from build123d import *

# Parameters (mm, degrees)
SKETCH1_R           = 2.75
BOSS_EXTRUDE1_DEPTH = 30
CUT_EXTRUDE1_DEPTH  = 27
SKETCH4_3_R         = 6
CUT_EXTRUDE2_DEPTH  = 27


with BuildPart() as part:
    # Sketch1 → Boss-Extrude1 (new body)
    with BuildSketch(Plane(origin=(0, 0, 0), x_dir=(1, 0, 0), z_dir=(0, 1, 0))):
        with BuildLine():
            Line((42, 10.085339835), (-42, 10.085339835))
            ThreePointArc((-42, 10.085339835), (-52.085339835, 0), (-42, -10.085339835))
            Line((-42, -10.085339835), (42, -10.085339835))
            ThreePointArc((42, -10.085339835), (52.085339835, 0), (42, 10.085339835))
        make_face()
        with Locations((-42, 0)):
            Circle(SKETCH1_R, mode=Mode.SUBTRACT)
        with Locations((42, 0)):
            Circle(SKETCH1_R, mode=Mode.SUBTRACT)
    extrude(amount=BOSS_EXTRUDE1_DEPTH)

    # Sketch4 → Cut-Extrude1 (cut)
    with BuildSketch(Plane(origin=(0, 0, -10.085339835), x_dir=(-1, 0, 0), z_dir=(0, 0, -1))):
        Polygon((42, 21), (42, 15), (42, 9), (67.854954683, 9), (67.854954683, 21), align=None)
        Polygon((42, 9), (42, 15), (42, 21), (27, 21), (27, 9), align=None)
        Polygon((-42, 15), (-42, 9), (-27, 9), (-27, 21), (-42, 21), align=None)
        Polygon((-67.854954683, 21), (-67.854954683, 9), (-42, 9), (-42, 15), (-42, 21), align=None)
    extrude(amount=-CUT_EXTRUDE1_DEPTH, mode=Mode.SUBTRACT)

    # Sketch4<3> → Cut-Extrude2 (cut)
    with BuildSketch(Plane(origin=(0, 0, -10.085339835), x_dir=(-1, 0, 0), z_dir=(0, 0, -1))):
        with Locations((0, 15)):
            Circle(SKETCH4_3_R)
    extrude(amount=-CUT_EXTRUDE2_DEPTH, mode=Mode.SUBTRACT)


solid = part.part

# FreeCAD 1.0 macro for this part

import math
import FreeCAD as App
import Part
import Sketcher

V = App.Vector
Q = App.Units.Quantity


def add_polygon(sketch, points):
    """Adds a closed chain of lines whose ends are joined by coincident constraints."""
    first, n = sketch.GeometryCount, len(points)
    for a, b in zip(points, points[1:] + points[:1]):
        sketch.addGeometry(Part.LineSegment(App.Vector(*a, 0), App.Vector(*b, 0)), False)
    for i in range(n):
        sketch.addConstraint(Sketcher.Constraint("Coincident", first + i, 2, first + (i + 1) % n, 1))

doc = App.newDocument("Part")
params = doc.addObject("Spreadsheet::Sheet", "Params")
for row, (alias, value) in enumerate([
    ("sketch1_diameter", "5.5 mm"),
    ("sketch1_width", "84 mm"),
    ("pad1_length", "30 mm"),
    ("sketch2_height", "12 mm"),
    ("pocket1_length", "27 mm"),
    ("sketch3_diameter", "12 mm"),
    ("pocket2_length", "27 mm"),
], start=1):
    params.set(f"A{row}", alias)
    params.set(f"B{row}", "=" + value)
    params.setAlias(f"B{row}", alias)

body = doc.addObject("PartDesign::Body", "Body")

# Sketch on XZ plane
sketch1 = body.newObject("Sketcher::SketchObject", "Sketch")
sketch1.AttachmentSupport = (doc.getObject("XZ_Plane"), [""])
sketch1.MapMode = "FlatFace"
sketch1.addGeometry([
    Part.LineSegment(V(42, -10.08534, 0), V(-42, -10.08534, 0)),  # 0
    Part.ArcOfCircle(Part.Circle(V(-42, 0, 0), V(0, 0, 1), 10.08534), math.radians(90), math.radians(270)),  # 1
    Part.LineSegment(V(-42, 10.08534, 0), V(42, 10.08534, 0)),  # 2
    Part.ArcOfCircle(Part.Circle(V(42, 0, 0), V(0, 0, 1), 10.08534), math.radians(-90), math.radians(90)),  # 3
    Part.Circle(V(-42, 0, 0), V(0, 0, 1), 2.75),  # 4
    Part.Circle(V(42, 0, 0), V(0, 0, 1), 2.75),  # 5
], False)
sketch1.addConstraint([
    Sketcher.Constraint("Tangent", 0, 2, 1, 2),
    Sketcher.Constraint("Tangent", 1, 1, 2, 1),
    Sketcher.Constraint("Tangent", 2, 2, 3, 2),
    Sketcher.Constraint("Tangent", 3, 1, 0, 1),
    Sketcher.Constraint("Horizontal", 0),
    Sketcher.Constraint("Horizontal", 2),
    Sketcher.Constraint("Coincident", 4, 3, 1, 3),
    Sketcher.Constraint("Coincident", 5, 3, 3, 3),
    Sketcher.Constraint("Equal", 4, 5),
    Sketcher.Constraint("Symmetric", 1, 3, 3, 3, -1, 1),
    Sketcher.Constraint("Diameter", 4, Q("5.5 mm")),
    Sketcher.Constraint("DistanceX", 0, 2, 0, 1, Q("84 mm")),
    Sketcher.Constraint("Radius", 1, Q("10.08534 mm")),
])
sketch1.setExpression("Constraints[10]", "Params.sketch1_diameter")
sketch1.setExpression("Constraints[11]", "Params.sketch1_width")
pad1 = body.newObject("PartDesign::Pad", "Pad")
pad1.Profile = sketch1
pad1.setExpression("Length", "Params.pad1_length")
pad1.Reversed = True

# Sketch on XY plane
sketch2 = body.newObject("Sketcher::SketchObject", "Sketch001")
sketch2.AttachmentSupport = (doc.getObject("XY_Plane"), [""])
sketch2.MapMode = "FlatFace"
sketch2.AttachmentOffset = App.Placement(V(0, 0, -10.08534), App.Rotation())
add_polygon(sketch2, [(-67.854955, 9), (-67.854955, 21), (-27, 21), (-27, 9)])  # lines 0-3
add_polygon(sketch2, [(27, 9), (27, 21), (67.854955, 21), (67.854955, 9)])  # lines 4-7
sketch2.addConstraint([
    Sketcher.Constraint("Vertical", 0),
    Sketcher.Constraint("Horizontal", 1),
    Sketcher.Constraint("Vertical", 2),
    Sketcher.Constraint("Horizontal", 3),
    Sketcher.Constraint("Vertical", 4),
    Sketcher.Constraint("Horizontal", 5),
    Sketcher.Constraint("Vertical", 6),
    Sketcher.Constraint("Horizontal", 7),
    Sketcher.Constraint("Symmetric", 1, 2, 4, 2, -2),
    Sketcher.Constraint("Symmetric", 3, 2, 6, 2, -2),
    Sketcher.Constraint("DistanceY", 0, 1, 0, 2, Q("12 mm")),
    Sketcher.Constraint("DistanceY", -1, 1, 0, 2, Q("21 mm")),
    Sketcher.Constraint("DistanceX", 1, 2, -1, 1, Q("27 mm")),
    Sketcher.Constraint("DistanceX", 1, 1, 1, 2, Q("40.854955 mm")),
])
sketch2.setExpression("Constraints[18]", "Params.sketch2_height")
pocket1 = body.newObject("PartDesign::Pocket", "Pocket")
pocket1.Profile = sketch2
pocket1.setExpression("Length", "Params.pocket1_length")
pocket1.Reversed = True

# Sketch on XY plane
sketch3 = body.newObject("Sketcher::SketchObject", "Sketch002")
sketch3.AttachmentSupport = (doc.getObject("XY_Plane"), [""])
sketch3.MapMode = "FlatFace"
sketch3.AttachmentOffset = App.Placement(V(0, 0, -10.08534), App.Rotation())
sketch3.addGeometry(Part.Circle(V(0, 15, 0), V(0, 0, 1), 6), False)
sketch3.addConstraint([
    Sketcher.Constraint("PointOnObject", 0, 3, -2),
    Sketcher.Constraint("Diameter", 0, Q("12 mm")),
    Sketcher.Constraint("DistanceY", -1, 1, 0, 3, Q("15 mm")),
])
sketch3.setExpression("Constraints[1]", "Params.sketch3_diameter")
pocket2 = body.newObject("PartDesign::Pocket", "Pocket001")
pocket2.Profile = sketch3
pocket2.setExpression("Length", "Params.pocket2_length")
pocket2.Reversed = True

doc.recompute()
